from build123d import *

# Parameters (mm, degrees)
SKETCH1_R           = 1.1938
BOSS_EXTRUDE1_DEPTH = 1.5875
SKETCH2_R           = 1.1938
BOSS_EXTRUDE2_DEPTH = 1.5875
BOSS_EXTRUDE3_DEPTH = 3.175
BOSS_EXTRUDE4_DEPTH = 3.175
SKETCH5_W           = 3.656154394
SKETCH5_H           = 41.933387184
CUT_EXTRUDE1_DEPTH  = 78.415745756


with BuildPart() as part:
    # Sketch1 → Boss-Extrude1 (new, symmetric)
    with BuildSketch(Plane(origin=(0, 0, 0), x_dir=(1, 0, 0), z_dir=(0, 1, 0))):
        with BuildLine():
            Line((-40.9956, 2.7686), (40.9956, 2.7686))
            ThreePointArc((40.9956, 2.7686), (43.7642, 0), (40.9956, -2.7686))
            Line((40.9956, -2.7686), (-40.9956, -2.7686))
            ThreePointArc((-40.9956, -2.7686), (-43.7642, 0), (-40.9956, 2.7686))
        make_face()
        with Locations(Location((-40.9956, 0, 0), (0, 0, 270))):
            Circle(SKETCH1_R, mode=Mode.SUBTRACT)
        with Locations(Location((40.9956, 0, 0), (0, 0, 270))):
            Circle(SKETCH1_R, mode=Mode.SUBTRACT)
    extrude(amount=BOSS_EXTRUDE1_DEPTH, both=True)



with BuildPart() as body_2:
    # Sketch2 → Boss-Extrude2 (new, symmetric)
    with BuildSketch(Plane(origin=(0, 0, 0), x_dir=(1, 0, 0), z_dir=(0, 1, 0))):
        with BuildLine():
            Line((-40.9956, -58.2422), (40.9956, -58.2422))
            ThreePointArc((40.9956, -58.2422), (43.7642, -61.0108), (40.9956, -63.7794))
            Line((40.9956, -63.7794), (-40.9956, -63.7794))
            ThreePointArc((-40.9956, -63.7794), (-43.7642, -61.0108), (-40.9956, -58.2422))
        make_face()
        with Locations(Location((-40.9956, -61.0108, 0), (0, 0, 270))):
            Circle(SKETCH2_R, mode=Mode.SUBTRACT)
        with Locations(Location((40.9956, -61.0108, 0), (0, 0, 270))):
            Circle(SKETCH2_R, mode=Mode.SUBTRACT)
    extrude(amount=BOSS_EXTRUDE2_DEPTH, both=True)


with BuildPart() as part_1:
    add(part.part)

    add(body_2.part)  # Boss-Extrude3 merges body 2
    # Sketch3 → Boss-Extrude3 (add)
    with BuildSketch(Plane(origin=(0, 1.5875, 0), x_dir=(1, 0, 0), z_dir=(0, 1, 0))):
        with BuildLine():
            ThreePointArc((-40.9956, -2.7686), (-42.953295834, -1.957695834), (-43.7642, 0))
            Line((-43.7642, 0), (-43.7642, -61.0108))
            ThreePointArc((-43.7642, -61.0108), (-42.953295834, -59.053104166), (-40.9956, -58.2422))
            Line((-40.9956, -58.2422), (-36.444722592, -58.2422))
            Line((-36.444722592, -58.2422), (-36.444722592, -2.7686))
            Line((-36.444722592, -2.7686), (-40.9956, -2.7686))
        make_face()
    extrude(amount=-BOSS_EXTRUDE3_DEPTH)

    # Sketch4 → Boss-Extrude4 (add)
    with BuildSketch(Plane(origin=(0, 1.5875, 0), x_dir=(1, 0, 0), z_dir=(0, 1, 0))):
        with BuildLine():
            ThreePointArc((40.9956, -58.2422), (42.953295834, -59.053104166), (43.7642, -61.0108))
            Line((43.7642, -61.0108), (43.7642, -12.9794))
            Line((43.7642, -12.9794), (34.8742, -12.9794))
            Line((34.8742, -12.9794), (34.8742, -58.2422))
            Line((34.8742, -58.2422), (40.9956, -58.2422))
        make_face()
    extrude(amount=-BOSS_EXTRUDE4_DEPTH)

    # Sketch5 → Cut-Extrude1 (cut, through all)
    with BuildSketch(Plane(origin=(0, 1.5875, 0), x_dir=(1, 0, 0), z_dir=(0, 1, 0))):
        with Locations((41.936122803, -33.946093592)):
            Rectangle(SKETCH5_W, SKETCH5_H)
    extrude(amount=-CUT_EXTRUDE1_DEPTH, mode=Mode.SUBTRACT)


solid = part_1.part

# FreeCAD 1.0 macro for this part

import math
import FreeCAD as App
import Part
import Sketcher
from FreeCAD import Vector
Q = App.Units.Quantity


def add_polygon(sketch, points):
    """Adds a closed chain of lines whose ends are joined by coincident constraints."""
    first, n = sketch.GeometryCount, len(points)
    for a, b in zip(points, points[1:] + points[:1]):
        sketch.addGeometry(Part.LineSegment(App.Vector(*a, 0), App.Vector(*b, 0)), False)
    for i in range(n):
        sketch.addConstraint(Sketcher.Constraint("Coincident", first + i, 2, first + (i + 1) % n, 1))

doc = App.newDocument("Part")
body = doc.addObject("PartDesign::Body", "Body")

sketch1 = body.newObject("Sketcher::SketchObject", "Sketch")
sketch1.AttachmentSupport = (doc.getObject("XZ_Plane"), [""])
sketch1.MapMode = "FlatFace"
sketch1.addGeometry([
    Part.LineSegment(Vector(41, -2.8, 0), Vector(-41, -2.8, 0)),
    Part.ArcOfCircle(Part.Circle(Vector(-41, 0, 0), Vector(0, 0, 1), 2.8), math.radians(90), math.radians(270)),
    Part.LineSegment(Vector(-41, 2.8, 0), Vector(41, 2.8, 0)),
    Part.ArcOfCircle(Part.Circle(Vector(41, 0, 0), Vector(0, 0, 1), 2.8), math.radians(-90), math.radians(90)),
    Part.Circle(Vector(41, 0, 0), Vector(0, 0, 1), 1.2),
    Part.Circle(Vector(-41, 0, 0), Vector(0, 0, 1), 1.2),
], False)
sketch1.addConstraint([
    Sketcher.Constraint("Tangent", 0, 2, 1, 2),
    Sketcher.Constraint("Tangent", 1, 1, 2, 1),
    Sketcher.Constraint("Tangent", 2, 2, 3, 2),
    Sketcher.Constraint("Tangent", 3, 1, 0, 1),
    Sketcher.Constraint("Horizontal", 0),
    Sketcher.Constraint("Horizontal", 2),
    Sketcher.Constraint("Coincident", 4, 3, 3, 3),
    Sketcher.Constraint("Coincident", 5, 3, 1, 3),
    Sketcher.Constraint("Equal", 4, 5),
    Sketcher.Constraint("Symmetric", 1, 3, 3, 3, -1, 1),
    Sketcher.Constraint("Diameter", 4, Q("0.094 in")),
    Sketcher.Constraint("Radius", 1, Q("0.109 in")),
    Sketcher.Constraint("DistanceX", 0, 2, 0, 1, Q("3.228 in")),
])
pad1 = body.newObject("PartDesign::Pad", "Pad")
pad1.Profile = sketch1
pad1.Length = Q("0.125 in")
pad1.Midplane = True
body2 = doc.addObject("PartDesign::Body", "Body001")

sketch2 = body2.newObject("Sketcher::SketchObject", "Sketch001")
sketch2.AttachmentSupport = (doc.getObject("XZ_Plane001"), [""])
sketch2.MapMode = "FlatFace"
sketch2.addGeometry([
    Part.LineSegment(Vector(41, 58.2, 0), Vector(-41, 58.2, 0)),
    Part.ArcOfCircle(Part.Circle(Vector(-41, 61, 0), Vector(0, 0, 1), 2.8), math.radians(90), math.radians(270)),
    Part.LineSegment(Vector(-41, 63.8, 0), Vector(41, 63.8, 0)),
    Part.ArcOfCircle(Part.Circle(Vector(41, 61, 0), Vector(0, 0, 1), 2.8), math.radians(-90), math.radians(90)),
    Part.Circle(Vector(41, 61, 0), Vector(0, 0, 1), 1.2),
    Part.Circle(Vector(-41, 61, 0), Vector(0, 0, 1), 1.2),
], False)
sketch2.addConstraint([
    Sketcher.Constraint("Tangent", 0, 2, 1, 2),
    Sketcher.Constraint("Tangent", 1, 1, 2, 1),
    Sketcher.Constraint("Tangent", 2, 2, 3, 2),
    Sketcher.Constraint("Tangent", 3, 1, 0, 1),
    Sketcher.Constraint("Horizontal", 0),
    Sketcher.Constraint("Horizontal", 2),
    Sketcher.Constraint("Coincident", 4, 3, 3, 3),
    Sketcher.Constraint("Coincident", 5, 3, 1, 3),
    Sketcher.Constraint("Equal", 4, 5),
    Sketcher.Constraint("Diameter", 4, Q("0.094 in")),
    Sketcher.Constraint("Radius", 1, Q("0.109 in")),
    Sketcher.Constraint("DistanceX", 0, 2, 0, 1, Q("3.228 in")),
    Sketcher.Constraint("DistanceX", 1, 3, -1, 1, Q("1.614 in")),
    Sketcher.Constraint("DistanceY", -1, 1, 1, 3, Q("2.402 in")),
])
pad2 = body2.newObject("PartDesign::Pad", "Pad001")
pad2.Profile = sketch2
pad2.Length = Q("0.125 in")
pad2.Midplane = True
body.AllowCompound = True
doc.recompute()

boolean = body.newObject("PartDesign::Boolean", "Boolean")
boolean.Type = "Fuse"
boolean.addObjects([body2])

sketch3 = body.newObject("Sketcher::SketchObject", "Sketch002")
sketch3.AttachmentSupport = (doc.getObject("XZ_Plane"), [""])
sketch3.MapMode = "FlatFace"
sketch3.AttachmentOffset = App.Placement(Vector(0, 0, -0.0625 * 25.4), App.Rotation())
sketch3.addGeometry([
    Part.ArcOfCircle(Part.Circle(Vector(-41, 0, 0), Vector(0, 0, 1), 2.8), math.radians(90), math.radians(180)),
    Part.LineSegment(Vector(-43.8, 0, 0), Vector(-43.8, 61, 0)),
    Part.ArcOfCircle(Part.Circle(Vector(-41, 61, 0), Vector(0, 0, 1), 2.8), math.radians(-180), math.radians(-90)),
    Part.LineSegment(Vector(-41, 58.2, 0), Vector(-36.4, 58.2, 0)),
    Part.LineSegment(Vector(-36.4, 58.2, 0), Vector(-36.4, 2.8, 0)),
    Part.LineSegment(Vector(-36.4, 2.8, 0), Vector(-41, 2.8, 0)),
], False)
sketch3.addConstraint([
    Sketcher.Constraint("Tangent", 0, 2, 1, 1),
    Sketcher.Constraint("Tangent", 1, 2, 2, 1),
    Sketcher.Constraint("Tangent", 2, 2, 3, 1),
    Sketcher.Constraint("Coincident", 3, 2, 4, 1),
    Sketcher.Constraint("Coincident", 4, 2, 5, 1),
    Sketcher.Constraint("Tangent", 5, 2, 0, 1),
    Sketcher.Constraint("Vertical", 1),
    Sketcher.Constraint("Horizontal", 3),
    Sketcher.Constraint("Vertical", 4),
    Sketcher.Constraint("Horizontal", 5),
    Sketcher.Constraint("Equal", 0, 2),
    Sketcher.Constraint("PointOnObject", 0, 3, -1),
    Sketcher.Constraint("Radius", 0, Q("0.109 in")),
    Sketcher.Constraint("DistanceY", 1, 1, 1, 2, Q("2.402 in")),
    Sketcher.Constraint("DistanceX", 0, 3, -1, 1, Q("1.614 in")),
    Sketcher.Constraint("DistanceX", 3, 1, 3, 2, 4.550877),
])
pad3 = body.newObject("PartDesign::Pad", "Pad002")
pad3.Profile = sketch3
pad3.Length = Q("0.125 in")

sketch4 = body.newObject("Sketcher::SketchObject", "Sketch003")
sketch4.AttachmentSupport = (doc.getObject("XZ_Plane"), [""])
sketch4.MapMode = "FlatFace"
sketch4.AttachmentOffset = App.Placement(Vector(0, 0, -0.0625 * 25.4), App.Rotation())
sketch4.addGeometry([
    Part.ArcOfCircle(Part.Circle(Vector(41, 61, 0), Vector(0, 0, 1), 2.8), math.radians(-90), math.radians(0)),
    Part.LineSegment(Vector(43.8, 61, 0), Vector(43.8, 13, 0)),
    Part.LineSegment(Vector(43.8, 13, 0), Vector(34.9, 13, 0)),
    Part.LineSegment(Vector(34.9, 13, 0), Vector(34.9, 58.2, 0)),
    Part.LineSegment(Vector(34.9, 58.2, 0), Vector(41, 58.2, 0)),
], False)
sketch4.addConstraint([
    Sketcher.Constraint("Tangent", 0, 2, 1, 1),
    Sketcher.Constraint("Coincident", 1, 2, 2, 1),
    Sketcher.Constraint("Coincident", 2, 2, 3, 1),
    Sketcher.Constraint("Coincident", 3, 2, 4, 1),
    Sketcher.Constraint("Tangent", 4, 2, 0, 1),
    Sketcher.Constraint("Vertical", 1),
    Sketcher.Constraint("Horizontal", 2),
    Sketcher.Constraint("Vertical", 3),
    Sketcher.Constraint("Horizontal", 4),
    Sketcher.Constraint("Radius", 0, Q("0.109 in")),
    Sketcher.Constraint("DistanceX", 2, 2, 2, 1, Q("0.35 in")),
    Sketcher.Constraint("DistanceY", 1, 2, 1, 1, Q("1.891 in")),
    Sketcher.Constraint("DistanceX", -1, 1, 0, 3, Q("1.614 in")),
    Sketcher.Constraint("DistanceY", -1, 1, 0, 3, Q("2.402 in")),
])
pad4 = body.newObject("PartDesign::Pad", "Pad003")
pad4.Profile = sketch4
pad4.Length = Q("0.125 in")

sketch5 = body.newObject("Sketcher::SketchObject", "Sketch004")
sketch5.AttachmentSupport = (doc.getObject("XZ_Plane"), [""])
sketch5.MapMode = "FlatFace"
sketch5.AttachmentOffset = App.Placement(Vector(0, 0, -0.0625 * 25.4), App.Rotation())
add_polygon(sketch5, [(40.1, 13), (40.1, 54.9), (43.8, 54.9), (43.8, 13)])
sketch5.addConstraint([
    Sketcher.Constraint("Vertical", 0),
    Sketcher.Constraint("Horizontal", 1),
    Sketcher.Constraint("Vertical", 2),
    Sketcher.Constraint("Horizontal", 3),
    Sketcher.Constraint("DistanceX", -1, 1, 1, 2, Q("1.723 in")),
    Sketcher.Constraint("DistanceY", -1, 1, 2, 2, Q("0.511 in")),
    Sketcher.Constraint("DistanceX", 1, 1, 1, 2, 3.656154),
    Sketcher.Constraint("DistanceY", 0, 1, 0, 2, 41.933387),
])
pocket1 = body.newObject("PartDesign::Pocket", "Pocket")
pocket1.Profile = sketch5
pocket1.Type = "ThroughAll"
pocket1.Reversed = True

doc.recompute()
